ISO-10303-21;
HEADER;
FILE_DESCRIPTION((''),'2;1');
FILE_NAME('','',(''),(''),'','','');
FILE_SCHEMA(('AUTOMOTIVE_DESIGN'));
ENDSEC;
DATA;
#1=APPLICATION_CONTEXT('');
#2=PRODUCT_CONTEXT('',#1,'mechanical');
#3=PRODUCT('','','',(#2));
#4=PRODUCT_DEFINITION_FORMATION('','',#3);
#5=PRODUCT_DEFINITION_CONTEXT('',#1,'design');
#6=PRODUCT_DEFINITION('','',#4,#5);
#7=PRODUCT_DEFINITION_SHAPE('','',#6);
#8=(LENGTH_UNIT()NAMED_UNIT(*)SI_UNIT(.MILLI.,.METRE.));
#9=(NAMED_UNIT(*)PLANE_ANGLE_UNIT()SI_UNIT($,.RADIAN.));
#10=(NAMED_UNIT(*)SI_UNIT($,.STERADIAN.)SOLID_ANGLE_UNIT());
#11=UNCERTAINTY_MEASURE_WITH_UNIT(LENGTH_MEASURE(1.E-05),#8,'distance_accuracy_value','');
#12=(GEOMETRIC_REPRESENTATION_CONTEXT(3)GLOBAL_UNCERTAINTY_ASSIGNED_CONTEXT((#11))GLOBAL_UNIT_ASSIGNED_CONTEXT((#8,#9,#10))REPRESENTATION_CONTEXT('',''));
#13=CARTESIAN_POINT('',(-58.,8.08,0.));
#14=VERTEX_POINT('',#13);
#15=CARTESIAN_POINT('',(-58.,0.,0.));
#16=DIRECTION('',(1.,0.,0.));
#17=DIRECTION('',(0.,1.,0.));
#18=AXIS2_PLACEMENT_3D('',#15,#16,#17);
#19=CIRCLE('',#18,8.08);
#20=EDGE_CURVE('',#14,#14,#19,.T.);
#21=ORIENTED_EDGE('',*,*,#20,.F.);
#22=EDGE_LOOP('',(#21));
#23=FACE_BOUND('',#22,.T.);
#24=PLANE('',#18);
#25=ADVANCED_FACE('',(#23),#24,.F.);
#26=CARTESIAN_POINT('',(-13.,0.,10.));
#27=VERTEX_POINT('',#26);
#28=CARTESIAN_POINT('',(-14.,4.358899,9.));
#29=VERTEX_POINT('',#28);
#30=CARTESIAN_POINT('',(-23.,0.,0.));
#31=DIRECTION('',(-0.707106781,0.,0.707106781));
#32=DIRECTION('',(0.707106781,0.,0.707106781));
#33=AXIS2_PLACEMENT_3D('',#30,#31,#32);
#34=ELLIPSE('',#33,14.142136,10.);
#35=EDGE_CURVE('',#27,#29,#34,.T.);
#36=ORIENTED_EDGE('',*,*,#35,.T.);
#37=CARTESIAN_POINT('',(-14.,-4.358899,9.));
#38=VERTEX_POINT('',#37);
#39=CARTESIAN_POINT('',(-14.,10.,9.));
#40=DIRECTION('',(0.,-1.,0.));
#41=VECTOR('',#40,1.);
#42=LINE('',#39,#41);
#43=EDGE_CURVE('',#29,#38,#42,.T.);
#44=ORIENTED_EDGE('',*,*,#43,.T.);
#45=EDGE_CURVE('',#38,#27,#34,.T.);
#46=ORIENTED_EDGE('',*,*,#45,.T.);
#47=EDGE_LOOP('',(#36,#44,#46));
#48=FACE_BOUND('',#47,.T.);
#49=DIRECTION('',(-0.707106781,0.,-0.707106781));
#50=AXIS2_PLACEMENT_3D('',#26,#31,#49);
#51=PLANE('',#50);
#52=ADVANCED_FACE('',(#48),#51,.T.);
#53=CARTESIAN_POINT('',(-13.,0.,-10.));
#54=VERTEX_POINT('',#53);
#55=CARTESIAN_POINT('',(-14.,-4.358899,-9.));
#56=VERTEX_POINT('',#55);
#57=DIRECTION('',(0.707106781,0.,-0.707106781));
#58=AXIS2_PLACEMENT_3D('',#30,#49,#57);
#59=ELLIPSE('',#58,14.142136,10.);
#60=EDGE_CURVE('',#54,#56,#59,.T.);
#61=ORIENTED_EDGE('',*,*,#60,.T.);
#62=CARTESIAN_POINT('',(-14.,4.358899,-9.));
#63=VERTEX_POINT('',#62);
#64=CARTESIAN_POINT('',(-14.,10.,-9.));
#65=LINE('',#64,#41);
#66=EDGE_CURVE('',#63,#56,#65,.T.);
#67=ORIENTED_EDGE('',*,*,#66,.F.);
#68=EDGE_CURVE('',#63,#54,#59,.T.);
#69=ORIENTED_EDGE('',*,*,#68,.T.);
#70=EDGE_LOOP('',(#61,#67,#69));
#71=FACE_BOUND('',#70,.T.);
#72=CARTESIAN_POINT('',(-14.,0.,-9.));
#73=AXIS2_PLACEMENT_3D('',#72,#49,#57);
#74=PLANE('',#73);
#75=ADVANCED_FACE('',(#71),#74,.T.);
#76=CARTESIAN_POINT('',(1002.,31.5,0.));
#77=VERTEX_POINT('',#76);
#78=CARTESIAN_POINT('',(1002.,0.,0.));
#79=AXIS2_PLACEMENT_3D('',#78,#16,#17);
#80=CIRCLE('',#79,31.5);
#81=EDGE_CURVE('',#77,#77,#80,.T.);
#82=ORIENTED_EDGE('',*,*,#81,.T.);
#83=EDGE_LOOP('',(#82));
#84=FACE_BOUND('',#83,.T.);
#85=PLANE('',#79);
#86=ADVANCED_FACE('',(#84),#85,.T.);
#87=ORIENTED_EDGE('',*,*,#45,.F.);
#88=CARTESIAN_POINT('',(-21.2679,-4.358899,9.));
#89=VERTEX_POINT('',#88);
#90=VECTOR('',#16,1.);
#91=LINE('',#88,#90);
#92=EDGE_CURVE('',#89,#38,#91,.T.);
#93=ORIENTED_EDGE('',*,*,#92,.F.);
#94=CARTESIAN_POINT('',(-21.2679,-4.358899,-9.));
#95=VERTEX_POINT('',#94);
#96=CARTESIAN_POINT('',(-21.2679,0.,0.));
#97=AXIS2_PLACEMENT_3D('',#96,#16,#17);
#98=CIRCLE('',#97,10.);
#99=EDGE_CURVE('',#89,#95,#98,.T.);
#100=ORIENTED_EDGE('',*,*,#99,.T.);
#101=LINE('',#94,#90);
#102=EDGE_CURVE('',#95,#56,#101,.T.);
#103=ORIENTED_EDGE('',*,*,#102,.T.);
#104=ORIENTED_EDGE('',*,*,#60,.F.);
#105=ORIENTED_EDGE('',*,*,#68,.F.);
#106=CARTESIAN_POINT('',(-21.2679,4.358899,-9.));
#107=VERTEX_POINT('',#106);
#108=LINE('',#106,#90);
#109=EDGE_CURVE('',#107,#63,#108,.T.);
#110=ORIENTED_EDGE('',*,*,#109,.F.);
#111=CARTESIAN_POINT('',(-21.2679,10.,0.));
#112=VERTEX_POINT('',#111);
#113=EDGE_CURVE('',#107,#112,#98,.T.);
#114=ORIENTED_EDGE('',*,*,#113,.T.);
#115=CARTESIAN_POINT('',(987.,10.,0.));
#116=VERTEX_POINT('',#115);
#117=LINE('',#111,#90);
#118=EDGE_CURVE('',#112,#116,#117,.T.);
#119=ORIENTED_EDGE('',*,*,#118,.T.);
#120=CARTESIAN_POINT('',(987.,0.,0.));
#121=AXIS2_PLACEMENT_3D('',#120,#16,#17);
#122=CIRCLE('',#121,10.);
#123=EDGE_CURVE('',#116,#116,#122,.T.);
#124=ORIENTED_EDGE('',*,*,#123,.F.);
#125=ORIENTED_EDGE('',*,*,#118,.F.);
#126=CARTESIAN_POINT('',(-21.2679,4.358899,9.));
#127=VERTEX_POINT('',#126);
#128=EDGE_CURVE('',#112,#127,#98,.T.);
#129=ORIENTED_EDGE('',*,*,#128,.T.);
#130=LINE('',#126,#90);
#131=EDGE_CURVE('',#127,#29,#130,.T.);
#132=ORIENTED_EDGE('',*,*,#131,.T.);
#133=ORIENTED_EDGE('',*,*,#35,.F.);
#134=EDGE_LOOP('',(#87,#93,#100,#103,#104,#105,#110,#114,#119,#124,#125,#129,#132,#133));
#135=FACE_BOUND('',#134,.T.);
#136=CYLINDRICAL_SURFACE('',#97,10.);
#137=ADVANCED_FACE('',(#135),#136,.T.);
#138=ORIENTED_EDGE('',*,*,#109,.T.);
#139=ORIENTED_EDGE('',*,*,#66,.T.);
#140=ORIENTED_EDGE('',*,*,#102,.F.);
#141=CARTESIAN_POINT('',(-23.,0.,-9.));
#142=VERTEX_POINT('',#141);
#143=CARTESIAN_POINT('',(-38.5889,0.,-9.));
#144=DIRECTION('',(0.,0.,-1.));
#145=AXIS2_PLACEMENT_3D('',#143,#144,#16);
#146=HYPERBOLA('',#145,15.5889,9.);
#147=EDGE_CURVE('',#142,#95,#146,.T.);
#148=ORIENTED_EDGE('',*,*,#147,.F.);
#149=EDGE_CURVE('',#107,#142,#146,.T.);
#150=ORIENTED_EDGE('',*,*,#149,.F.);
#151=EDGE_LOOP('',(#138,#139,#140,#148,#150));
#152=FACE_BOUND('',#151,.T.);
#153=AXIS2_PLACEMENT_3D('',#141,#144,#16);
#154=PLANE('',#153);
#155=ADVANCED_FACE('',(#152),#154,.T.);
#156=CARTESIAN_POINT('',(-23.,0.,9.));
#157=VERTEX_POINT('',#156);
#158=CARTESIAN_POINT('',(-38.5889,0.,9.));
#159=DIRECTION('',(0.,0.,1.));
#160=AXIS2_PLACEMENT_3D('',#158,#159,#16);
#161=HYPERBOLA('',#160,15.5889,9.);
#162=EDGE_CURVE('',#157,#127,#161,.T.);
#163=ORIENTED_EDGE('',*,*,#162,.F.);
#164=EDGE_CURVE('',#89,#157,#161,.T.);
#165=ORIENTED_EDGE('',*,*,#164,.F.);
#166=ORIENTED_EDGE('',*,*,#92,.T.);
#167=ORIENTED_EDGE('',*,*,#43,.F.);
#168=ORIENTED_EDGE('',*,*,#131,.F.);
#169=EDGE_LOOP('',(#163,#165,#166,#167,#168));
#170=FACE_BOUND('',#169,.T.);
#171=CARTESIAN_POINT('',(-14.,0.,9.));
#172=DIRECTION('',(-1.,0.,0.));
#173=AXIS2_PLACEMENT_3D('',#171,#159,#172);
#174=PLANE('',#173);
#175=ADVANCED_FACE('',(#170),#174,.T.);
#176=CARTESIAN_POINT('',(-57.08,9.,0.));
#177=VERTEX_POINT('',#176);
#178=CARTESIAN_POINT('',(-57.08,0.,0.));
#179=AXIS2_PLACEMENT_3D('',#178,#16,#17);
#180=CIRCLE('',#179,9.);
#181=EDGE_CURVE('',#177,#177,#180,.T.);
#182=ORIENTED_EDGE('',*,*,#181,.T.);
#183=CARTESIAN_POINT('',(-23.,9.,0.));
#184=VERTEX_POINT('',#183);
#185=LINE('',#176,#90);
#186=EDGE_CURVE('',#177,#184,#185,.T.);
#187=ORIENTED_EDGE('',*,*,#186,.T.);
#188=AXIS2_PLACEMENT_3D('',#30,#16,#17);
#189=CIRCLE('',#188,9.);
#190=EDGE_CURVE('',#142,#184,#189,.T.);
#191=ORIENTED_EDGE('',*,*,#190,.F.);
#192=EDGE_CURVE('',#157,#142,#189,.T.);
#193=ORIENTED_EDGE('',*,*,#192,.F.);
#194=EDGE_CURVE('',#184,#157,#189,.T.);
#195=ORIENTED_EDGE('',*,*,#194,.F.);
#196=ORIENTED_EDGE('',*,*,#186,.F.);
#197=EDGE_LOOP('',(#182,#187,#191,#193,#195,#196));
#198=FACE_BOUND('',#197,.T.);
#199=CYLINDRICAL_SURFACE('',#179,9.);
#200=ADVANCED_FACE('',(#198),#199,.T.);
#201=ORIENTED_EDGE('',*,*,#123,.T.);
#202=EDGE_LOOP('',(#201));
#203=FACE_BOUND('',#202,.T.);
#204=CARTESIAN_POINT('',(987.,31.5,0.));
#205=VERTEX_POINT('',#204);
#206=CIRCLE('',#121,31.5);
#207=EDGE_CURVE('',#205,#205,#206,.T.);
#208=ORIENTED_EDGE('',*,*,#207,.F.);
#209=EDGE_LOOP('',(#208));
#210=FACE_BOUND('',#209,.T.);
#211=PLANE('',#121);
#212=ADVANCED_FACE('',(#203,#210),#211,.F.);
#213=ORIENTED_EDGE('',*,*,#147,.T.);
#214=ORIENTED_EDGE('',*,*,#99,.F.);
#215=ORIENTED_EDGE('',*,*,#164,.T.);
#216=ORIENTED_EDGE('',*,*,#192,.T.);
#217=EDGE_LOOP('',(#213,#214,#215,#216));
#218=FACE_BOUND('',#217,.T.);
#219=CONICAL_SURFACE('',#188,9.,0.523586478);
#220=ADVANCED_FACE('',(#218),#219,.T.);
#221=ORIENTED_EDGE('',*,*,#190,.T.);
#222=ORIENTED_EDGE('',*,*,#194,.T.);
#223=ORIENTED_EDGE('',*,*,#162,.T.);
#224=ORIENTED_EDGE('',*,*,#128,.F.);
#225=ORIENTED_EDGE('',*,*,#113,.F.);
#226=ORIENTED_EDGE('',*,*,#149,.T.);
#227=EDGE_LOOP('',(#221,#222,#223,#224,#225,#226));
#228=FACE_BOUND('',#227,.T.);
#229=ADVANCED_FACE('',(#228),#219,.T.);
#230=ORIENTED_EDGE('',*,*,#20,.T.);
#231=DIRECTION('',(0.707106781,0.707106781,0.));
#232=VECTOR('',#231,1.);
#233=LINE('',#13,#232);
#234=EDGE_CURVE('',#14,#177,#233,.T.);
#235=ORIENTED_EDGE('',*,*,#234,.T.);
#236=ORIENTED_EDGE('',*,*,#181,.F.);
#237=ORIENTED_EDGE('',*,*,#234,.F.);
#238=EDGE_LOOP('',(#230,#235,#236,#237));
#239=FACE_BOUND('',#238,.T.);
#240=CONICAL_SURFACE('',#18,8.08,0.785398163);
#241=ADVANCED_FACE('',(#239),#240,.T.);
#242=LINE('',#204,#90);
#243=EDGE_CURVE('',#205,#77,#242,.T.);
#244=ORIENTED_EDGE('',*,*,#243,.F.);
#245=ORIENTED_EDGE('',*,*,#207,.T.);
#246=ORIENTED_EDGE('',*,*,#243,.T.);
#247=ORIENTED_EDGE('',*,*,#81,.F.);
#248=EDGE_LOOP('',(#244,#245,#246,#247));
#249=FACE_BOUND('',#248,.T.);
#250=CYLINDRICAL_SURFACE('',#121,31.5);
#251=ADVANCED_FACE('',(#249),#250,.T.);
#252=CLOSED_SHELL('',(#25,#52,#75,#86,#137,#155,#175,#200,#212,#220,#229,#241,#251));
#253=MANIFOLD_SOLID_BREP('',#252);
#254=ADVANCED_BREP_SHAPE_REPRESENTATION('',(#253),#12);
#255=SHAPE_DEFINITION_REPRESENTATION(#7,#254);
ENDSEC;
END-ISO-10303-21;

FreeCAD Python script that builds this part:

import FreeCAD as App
import Part
import Sketcher
from FreeCAD import Vector
Q = App.Units.Quantity


def add_polygon(sketch, points):
    """Adds a closed chain of lines whose ends are joined by coincident constraints."""
    first, n = sketch.GeometryCount, len(points)
    for a, b in zip(points, points[1:] + points[:1]):
        sketch.addGeometry(Part.LineSegment(App.Vector(*a, 0), App.Vector(*b, 0)), False)
    for i in range(n):
        sketch.addConstraint(Sketcher.Constraint("Coincident", first + i, 2, first + (i + 1) % n, 1))

doc = App.newDocument("Part")
body = doc.addObject("PartDesign::Body", "Body")

sketch1 = doc.addObject("Sketcher::SketchObject", "Sketch")
body.addObject(sketch1)
sketch1.AttachmentSupport = (doc.XY_Plane, [""])
sketch1.MapMode = "FlatFace"
add_polygon(sketch1, [(-58, 0), (1002, 0), (1002, 31.5), (987, 31.5), (987, 10), (-21.3, 10), (-23, 9), (-57.1, 9), (-58, 8.1)])
sketch1.addConstraint([
    Sketcher.Constraint("Horizontal", 0),
    Sketcher.Constraint("Vertical", 1),
    Sketcher.Constraint("Horizontal", 2),
    Sketcher.Constraint("Vertical", 3),
    Sketcher.Constraint("Horizontal", 4),
    Sketcher.Constraint("Horizontal", 6),
    Sketcher.Constraint("Vertical", 8),
    Sketcher.Constraint("PointOnObject", 0, 2, -1),
    Sketcher.Constraint("DistanceX", 0, 1, 0, 2, Q("1060 mm")),
    Sketcher.Constraint("DistanceX", 2, 2, 2, 1, Q("15 mm")),
    Sketcher.Constraint("Angle", 5, Q("-150.0007 deg")),
    Sketcher.Constraint("Angle", 7, Q("-135 deg")),
    Sketcher.Constraint("Distance", 5, Q("2 mm")),
    Sketcher.Constraint("DistanceY", 1, 1, 1, 2, Q("31.5 mm")),
    Sketcher.Constraint("DistanceY", 3, 2, 3, 1, Q("21.5 mm")),
    Sketcher.Constraint("DistanceX", -1, 1, 0, 2, Q("1002 mm")),
    Sketcher.Constraint("DistanceX", 5, 2, -1, 1, Q("23 mm")),
    Sketcher.Constraint("DistanceX", 6, 2, 6, 1, Q("34.08 mm")),
])
revolution = doc.addObject("PartDesign::Revolution", "Revolution")
body.addObject(revolution)
revolution.Profile = sketch1
revolution.ReferenceAxis = (sketch1, ["H_Axis"])
revolution.Angle = 360

sketch2 = doc.addObject("Sketcher::SketchObject", "Sketch001")
body.addObject(sketch2)
sketch2.AttachmentSupport = (doc.XZ_Plane, [""])
sketch2.MapMode = "FlatFace"
add_polygon(sketch2, [(-13, -10), (-23, -10), (-23, -9), (-14, -9)])
sketch2.addConstraint([
    Sketcher.Constraint("Horizontal", 0),
    Sketcher.Constraint("Vertical", 1),
    Sketcher.Constraint("Horizontal", 2),
    Sketcher.Constraint("DistanceX", 0, 2, 0, 1, Q("10 mm")),
    Sketcher.Constraint("DistanceX", 2, 1, 2, 2, Q("9 mm")),
    Sketcher.Constraint("DistanceY", 1, 1, 1, 2, Q("1 mm")),
    Sketcher.Constraint("DistanceX", 0, 2, -1, 1, Q("23 mm")),
    Sketcher.Constraint("DistanceY", 0, 2, -1, 1, Q("10 mm")),
])
pocket1 = doc.addObject("PartDesign::Pocket", "Pocket")
body.addObject(pocket1)
pocket1.Profile = sketch2
pocket1.Length = 20
pocket1.Midplane = True

sketch3 = doc.addObject("Sketcher::SketchObject", "Sketch002")
body.addObject(sketch3)
sketch3.AttachmentSupport = (doc.XZ_Plane, [""])
sketch3.MapMode = "FlatFace"
add_polygon(sketch3, [(-23, 9), (-23, 10), (-13, 10), (-14, 9)])
sketch3.addConstraint([
    Sketcher.Constraint("Vertical", 0),
    Sketcher.Constraint("Horizontal", 1),
    Sketcher.Constraint("Horizontal", 3),
    Sketcher.Constraint("DistanceX", 1, 1, 1, 2, Q("10 mm")),
    Sketcher.Constraint("DistanceX", 3, 2, 3, 1, Q("9 mm")),
    Sketcher.Constraint("DistanceY", 0, 1, 0, 2, Q("1 mm")),
    Sketcher.Constraint("DistanceX", 0, 2, -1, 1, Q("23 mm")),
    Sketcher.Constraint("DistanceY", -1, 1, 0, 2, Q("10 mm")),
])
pocket2 = doc.addObject("PartDesign::Pocket", "Pocket001")
body.addObject(pocket2)
pocket2.Profile = sketch3
pocket2.Length = 20
pocket2.Midplane = True

doc.recompute()
